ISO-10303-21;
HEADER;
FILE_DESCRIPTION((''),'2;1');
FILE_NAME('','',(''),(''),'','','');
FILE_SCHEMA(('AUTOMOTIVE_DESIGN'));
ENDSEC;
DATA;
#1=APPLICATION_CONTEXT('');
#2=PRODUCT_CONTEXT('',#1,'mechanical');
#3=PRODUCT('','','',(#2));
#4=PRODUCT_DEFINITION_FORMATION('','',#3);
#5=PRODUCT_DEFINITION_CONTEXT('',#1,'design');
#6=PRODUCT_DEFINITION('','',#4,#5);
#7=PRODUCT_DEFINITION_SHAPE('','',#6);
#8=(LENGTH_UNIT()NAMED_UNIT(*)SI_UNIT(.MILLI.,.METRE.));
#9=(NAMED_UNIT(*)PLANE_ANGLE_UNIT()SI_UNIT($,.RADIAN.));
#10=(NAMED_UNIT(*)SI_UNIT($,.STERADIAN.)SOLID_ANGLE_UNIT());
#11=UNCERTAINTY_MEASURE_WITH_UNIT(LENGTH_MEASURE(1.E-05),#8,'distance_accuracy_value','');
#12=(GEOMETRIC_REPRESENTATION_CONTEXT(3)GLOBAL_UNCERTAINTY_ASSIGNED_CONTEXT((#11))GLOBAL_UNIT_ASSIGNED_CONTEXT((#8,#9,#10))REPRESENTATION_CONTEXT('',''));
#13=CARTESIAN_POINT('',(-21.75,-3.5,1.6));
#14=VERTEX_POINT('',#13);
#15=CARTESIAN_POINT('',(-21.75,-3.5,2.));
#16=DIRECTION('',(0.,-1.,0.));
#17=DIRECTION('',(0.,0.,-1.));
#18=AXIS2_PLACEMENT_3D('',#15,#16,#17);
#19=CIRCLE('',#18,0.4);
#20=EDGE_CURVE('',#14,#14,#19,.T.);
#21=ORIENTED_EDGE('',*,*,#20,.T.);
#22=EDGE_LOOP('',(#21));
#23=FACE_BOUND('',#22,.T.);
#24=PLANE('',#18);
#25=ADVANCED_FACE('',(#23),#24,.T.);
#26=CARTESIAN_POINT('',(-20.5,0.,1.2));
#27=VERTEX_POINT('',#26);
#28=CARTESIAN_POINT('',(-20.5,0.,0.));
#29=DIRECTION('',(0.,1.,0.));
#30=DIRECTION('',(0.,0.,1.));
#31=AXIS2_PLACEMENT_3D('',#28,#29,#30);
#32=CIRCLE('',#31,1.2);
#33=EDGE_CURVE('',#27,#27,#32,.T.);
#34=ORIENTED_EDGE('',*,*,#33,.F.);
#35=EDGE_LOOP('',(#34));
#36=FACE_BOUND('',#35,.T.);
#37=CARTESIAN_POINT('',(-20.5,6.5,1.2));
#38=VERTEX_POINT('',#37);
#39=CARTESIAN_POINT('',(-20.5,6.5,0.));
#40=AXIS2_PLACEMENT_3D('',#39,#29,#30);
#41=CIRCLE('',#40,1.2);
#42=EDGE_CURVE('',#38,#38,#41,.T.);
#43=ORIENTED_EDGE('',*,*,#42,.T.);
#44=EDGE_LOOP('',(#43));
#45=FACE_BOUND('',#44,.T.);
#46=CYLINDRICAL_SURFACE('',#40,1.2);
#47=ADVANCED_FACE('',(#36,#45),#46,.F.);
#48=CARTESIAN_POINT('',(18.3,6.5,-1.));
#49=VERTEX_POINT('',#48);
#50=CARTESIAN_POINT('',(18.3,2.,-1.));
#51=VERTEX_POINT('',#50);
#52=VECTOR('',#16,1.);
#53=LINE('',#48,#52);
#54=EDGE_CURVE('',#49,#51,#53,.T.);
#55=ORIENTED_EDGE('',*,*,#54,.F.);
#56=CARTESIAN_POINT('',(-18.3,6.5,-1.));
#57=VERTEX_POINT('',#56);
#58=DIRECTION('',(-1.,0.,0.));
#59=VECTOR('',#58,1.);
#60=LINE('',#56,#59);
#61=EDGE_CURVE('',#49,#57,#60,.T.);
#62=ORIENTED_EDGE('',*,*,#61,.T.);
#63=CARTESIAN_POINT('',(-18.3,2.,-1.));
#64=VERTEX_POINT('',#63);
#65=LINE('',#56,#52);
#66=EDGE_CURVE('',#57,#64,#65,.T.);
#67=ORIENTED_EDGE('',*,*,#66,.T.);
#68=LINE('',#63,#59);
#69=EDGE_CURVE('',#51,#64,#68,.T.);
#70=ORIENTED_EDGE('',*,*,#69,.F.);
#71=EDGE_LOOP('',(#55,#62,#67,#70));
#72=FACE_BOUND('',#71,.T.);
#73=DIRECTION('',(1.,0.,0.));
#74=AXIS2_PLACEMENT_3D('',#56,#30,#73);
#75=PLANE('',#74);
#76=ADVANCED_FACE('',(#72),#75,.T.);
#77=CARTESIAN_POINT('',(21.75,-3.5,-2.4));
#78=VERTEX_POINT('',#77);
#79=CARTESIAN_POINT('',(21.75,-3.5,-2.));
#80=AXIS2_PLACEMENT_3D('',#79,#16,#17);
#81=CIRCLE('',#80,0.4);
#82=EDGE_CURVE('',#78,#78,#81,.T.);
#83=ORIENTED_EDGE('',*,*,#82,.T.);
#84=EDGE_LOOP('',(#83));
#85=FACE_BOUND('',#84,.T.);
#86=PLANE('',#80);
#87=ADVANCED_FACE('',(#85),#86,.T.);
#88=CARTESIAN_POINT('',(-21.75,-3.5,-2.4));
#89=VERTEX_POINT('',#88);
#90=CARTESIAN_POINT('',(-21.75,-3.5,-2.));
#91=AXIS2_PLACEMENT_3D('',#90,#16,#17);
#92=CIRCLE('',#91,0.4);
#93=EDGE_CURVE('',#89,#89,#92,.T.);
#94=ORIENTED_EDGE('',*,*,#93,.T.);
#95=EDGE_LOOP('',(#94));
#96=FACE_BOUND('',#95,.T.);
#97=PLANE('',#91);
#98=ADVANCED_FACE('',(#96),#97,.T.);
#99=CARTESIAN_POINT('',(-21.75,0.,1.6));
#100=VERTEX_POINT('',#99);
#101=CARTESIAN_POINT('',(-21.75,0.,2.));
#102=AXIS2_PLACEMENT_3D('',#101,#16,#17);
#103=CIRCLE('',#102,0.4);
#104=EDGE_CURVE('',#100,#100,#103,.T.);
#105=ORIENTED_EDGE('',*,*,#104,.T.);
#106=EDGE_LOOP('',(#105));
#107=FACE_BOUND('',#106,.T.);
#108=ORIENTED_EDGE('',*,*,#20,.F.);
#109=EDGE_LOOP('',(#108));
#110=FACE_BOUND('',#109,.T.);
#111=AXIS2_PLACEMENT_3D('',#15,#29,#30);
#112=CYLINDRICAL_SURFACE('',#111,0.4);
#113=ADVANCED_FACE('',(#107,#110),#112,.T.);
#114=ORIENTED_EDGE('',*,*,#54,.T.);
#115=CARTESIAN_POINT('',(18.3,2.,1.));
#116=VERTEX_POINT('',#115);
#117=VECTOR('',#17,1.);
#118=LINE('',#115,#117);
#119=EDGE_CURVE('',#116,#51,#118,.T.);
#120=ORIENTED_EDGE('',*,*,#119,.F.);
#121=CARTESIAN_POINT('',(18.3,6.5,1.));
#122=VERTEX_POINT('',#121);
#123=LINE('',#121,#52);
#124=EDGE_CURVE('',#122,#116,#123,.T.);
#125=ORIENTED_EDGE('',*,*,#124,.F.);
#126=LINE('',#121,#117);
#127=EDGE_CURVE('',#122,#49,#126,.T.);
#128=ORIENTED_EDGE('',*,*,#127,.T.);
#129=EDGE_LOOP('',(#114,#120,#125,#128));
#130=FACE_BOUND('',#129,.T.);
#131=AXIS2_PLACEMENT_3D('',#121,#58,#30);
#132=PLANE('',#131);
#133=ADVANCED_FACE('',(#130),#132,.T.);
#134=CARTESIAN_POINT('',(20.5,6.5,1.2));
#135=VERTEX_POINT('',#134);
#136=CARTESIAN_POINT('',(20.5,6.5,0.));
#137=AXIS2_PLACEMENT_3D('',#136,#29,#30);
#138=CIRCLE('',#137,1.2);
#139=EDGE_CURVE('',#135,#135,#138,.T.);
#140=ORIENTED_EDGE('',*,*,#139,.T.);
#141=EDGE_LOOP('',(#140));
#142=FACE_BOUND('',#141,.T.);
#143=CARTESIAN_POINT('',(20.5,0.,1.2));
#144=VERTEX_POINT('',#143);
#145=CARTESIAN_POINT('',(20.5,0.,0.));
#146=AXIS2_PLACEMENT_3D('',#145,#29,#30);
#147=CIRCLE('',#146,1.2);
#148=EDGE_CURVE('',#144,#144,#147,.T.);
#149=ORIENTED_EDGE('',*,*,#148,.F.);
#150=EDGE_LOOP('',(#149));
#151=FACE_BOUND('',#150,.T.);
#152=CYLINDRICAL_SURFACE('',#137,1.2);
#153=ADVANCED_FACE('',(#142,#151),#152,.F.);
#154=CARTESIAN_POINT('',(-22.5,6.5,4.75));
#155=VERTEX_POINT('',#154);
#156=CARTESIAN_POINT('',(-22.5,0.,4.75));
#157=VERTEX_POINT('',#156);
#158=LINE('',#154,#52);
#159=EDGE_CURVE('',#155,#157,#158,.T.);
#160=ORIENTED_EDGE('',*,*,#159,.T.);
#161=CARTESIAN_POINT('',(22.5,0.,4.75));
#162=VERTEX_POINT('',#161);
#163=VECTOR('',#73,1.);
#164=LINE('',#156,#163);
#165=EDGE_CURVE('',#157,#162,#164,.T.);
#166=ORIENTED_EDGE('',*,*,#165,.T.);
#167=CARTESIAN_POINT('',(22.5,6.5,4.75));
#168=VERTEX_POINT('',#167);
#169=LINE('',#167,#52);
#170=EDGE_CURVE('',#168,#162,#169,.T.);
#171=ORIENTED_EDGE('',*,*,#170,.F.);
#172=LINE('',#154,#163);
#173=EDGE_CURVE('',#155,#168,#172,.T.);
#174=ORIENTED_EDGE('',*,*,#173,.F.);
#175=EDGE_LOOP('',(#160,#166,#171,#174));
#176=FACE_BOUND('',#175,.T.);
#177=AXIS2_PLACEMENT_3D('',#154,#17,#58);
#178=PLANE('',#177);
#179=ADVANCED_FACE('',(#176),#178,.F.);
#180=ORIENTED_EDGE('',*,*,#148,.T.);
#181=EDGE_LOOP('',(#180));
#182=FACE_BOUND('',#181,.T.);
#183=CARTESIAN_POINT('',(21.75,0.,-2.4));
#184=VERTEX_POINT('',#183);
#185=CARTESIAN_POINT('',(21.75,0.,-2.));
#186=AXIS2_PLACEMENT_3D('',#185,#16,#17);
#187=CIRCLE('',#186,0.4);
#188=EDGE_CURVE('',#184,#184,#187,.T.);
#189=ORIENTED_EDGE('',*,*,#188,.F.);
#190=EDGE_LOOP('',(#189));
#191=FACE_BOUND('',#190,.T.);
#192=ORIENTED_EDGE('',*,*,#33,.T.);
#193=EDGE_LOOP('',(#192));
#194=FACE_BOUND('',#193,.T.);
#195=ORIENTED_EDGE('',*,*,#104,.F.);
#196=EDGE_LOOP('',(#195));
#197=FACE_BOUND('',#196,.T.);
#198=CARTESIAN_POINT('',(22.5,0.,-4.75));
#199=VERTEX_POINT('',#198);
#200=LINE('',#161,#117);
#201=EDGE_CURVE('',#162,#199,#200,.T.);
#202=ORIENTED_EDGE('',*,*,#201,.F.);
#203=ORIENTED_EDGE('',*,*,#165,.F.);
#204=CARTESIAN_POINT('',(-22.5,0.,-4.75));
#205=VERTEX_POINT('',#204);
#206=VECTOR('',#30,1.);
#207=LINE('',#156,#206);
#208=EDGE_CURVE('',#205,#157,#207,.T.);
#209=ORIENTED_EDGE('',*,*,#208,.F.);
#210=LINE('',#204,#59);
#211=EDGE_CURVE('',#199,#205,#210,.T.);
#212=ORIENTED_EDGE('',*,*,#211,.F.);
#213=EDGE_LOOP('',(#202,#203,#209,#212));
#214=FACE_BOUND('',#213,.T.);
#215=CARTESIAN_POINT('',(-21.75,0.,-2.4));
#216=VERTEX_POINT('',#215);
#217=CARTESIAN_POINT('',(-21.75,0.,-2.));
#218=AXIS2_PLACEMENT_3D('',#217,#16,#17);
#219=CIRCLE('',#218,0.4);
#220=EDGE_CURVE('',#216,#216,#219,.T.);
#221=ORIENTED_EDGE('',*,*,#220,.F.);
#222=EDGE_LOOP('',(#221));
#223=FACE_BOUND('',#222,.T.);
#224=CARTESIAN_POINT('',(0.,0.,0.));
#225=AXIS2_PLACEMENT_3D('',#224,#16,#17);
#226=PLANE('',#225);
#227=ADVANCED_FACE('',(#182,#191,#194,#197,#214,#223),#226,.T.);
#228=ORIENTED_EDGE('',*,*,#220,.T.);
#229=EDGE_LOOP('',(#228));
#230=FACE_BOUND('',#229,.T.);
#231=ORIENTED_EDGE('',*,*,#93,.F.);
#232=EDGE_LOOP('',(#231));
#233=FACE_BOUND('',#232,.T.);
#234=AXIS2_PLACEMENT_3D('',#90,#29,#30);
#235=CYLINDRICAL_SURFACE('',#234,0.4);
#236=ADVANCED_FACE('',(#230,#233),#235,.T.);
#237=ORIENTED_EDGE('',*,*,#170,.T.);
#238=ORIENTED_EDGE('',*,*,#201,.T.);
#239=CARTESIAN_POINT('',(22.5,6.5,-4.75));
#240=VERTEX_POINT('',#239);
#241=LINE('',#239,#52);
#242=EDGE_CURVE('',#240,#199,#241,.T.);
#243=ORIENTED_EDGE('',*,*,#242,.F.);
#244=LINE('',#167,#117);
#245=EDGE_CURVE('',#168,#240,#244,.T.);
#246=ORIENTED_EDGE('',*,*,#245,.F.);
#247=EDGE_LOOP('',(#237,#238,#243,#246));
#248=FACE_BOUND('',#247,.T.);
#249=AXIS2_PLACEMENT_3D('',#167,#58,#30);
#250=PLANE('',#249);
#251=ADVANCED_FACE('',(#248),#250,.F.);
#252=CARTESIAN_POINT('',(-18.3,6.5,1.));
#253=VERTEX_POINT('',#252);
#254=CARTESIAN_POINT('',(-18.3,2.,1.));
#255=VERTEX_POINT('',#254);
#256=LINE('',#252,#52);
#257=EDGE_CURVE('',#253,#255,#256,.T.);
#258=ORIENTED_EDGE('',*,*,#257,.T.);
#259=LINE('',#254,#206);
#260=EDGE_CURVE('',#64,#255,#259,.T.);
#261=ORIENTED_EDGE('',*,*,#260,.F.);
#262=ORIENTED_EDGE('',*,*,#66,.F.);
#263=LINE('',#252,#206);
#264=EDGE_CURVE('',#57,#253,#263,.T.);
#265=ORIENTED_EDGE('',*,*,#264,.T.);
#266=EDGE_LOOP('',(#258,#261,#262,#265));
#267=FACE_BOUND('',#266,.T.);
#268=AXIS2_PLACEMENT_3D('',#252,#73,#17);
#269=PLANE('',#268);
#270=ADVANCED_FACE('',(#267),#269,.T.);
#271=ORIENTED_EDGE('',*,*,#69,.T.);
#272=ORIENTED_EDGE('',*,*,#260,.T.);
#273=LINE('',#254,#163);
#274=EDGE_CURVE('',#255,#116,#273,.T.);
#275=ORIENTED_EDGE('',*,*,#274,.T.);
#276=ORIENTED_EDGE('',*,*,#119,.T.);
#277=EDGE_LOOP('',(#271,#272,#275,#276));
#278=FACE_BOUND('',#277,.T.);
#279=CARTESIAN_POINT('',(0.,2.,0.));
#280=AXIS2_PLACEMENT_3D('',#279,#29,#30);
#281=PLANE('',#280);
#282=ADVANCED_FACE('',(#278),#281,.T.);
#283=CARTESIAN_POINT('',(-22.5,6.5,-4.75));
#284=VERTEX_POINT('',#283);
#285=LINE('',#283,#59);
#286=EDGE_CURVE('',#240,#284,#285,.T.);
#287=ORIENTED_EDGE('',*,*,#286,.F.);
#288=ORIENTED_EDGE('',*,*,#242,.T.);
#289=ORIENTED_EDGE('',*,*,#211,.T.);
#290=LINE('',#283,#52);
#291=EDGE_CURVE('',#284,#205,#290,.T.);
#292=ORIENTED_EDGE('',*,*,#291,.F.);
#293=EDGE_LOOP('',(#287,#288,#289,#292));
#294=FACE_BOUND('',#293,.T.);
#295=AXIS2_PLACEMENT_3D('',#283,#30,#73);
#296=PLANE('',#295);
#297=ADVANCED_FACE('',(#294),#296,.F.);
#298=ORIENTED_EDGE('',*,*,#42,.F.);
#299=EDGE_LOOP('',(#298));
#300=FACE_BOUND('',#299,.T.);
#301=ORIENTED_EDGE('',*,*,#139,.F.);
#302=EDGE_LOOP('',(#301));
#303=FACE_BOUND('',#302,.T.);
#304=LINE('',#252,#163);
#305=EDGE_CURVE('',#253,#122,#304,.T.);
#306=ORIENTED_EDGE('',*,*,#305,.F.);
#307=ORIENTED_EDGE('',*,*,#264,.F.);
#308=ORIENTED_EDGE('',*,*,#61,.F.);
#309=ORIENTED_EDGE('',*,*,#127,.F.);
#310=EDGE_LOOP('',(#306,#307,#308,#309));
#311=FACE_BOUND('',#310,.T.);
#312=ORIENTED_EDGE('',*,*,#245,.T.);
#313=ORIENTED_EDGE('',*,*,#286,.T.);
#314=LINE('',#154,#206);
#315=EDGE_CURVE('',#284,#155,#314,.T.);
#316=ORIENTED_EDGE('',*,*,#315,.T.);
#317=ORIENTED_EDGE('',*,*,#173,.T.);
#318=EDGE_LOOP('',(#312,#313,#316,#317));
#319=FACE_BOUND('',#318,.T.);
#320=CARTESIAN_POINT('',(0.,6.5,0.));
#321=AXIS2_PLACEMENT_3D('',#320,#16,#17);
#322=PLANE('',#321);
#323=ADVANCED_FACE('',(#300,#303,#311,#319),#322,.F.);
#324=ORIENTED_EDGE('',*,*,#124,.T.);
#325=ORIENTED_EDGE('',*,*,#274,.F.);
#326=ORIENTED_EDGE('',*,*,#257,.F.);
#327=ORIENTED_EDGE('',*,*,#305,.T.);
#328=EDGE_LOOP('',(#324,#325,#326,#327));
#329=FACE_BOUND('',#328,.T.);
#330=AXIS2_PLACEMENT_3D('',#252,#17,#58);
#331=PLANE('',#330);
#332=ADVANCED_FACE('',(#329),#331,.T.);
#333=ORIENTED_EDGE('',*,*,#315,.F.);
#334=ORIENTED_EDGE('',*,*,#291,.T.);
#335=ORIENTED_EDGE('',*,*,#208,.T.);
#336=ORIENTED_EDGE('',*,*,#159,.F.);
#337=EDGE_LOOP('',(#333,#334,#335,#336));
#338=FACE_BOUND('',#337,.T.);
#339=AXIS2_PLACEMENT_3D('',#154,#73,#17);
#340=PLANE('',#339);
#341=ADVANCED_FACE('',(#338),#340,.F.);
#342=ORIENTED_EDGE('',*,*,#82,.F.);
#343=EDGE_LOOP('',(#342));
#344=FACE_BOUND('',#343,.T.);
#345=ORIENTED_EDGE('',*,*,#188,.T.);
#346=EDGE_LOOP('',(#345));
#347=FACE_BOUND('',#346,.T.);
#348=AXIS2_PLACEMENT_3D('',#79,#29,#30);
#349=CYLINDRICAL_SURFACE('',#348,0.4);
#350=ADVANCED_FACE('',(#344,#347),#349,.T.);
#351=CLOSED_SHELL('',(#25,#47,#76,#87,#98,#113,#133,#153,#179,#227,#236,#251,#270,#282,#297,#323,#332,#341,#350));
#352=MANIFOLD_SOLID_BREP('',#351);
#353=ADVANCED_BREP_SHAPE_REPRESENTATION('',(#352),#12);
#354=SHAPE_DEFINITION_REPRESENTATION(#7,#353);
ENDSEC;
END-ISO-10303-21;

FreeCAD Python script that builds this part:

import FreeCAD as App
import Part
import Sketcher

V = App.Vector
Q = App.Units.Quantity

doc = App.newDocument("Part")
body = doc.addObject("PartDesign::Body", "Body")

# Sketch on XZ plane
sketch1 = body.newObject("Sketcher::SketchObject", "Sketch")
sketch1.AttachmentSupport = (doc.getObject("XZ_Plane"), [""])
sketch1.MapMode = "FlatFace"
sketch1.addGeometry(Part.LineSegment(V(-22.5, -4.8, 0), V(-22.5, 4.8, 0)), False)
sketch1.addGeometry(Part.LineSegment(V(-22.5, 4.8, 0), V(22.5, 4.8, 0)), False)
sketch1.addGeometry(Part.LineSegment(V(22.5, 4.8, 0), V(22.5, -4.8, 0)), False)
sketch1.addGeometry(Part.LineSegment(V(22.5, -4.8, 0), V(-22.5, -4.8, 0)), False)
sketch1.addGeometry(Part.LineSegment(V(18.3, 1, 0), V(-18.3, 1, 0)), False)
sketch1.addGeometry(Part.LineSegment(V(-18.3, 1, 0), V(-18.3, -1, 0)), False)
sketch1.addGeometry(Part.LineSegment(V(-18.3, -1, 0), V(18.3, -1, 0)), False)
sketch1.addGeometry(Part.LineSegment(V(18.3, -1, 0), V(18.3, 1, 0)), False)
sketch1.addConstraint(Sketcher.Constraint("Coincident", 0, 2, 1, 1))
sketch1.addConstraint(Sketcher.Constraint("Coincident", 1, 2, 2, 1))
sketch1.addConstraint(Sketcher.Constraint("Coincident", 2, 2, 3, 1))
sketch1.addConstraint(Sketcher.Constraint("Coincident", 3, 2, 0, 1))
sketch1.addConstraint(Sketcher.Constraint("Coincident", 4, 2, 5, 1))
sketch1.addConstraint(Sketcher.Constraint("Coincident", 5, 2, 6, 1))
sketch1.addConstraint(Sketcher.Constraint("Coincident", 6, 2, 7, 1))
sketch1.addConstraint(Sketcher.Constraint("Coincident", 7, 2, 4, 1))
sketch1.addConstraint(Sketcher.Constraint("Vertical", 0))
sketch1.addConstraint(Sketcher.Constraint("Horizontal", 1))
sketch1.addConstraint(Sketcher.Constraint("Vertical", 2))
sketch1.addConstraint(Sketcher.Constraint("Horizontal", 3))
sketch1.addConstraint(Sketcher.Constraint("Horizontal", 4))
sketch1.addConstraint(Sketcher.Constraint("Vertical", 5))
sketch1.addConstraint(Sketcher.Constraint("Horizontal", 6))
sketch1.addConstraint(Sketcher.Constraint("Vertical", 7))
sketch1.addConstraint(Sketcher.Constraint("Symmetric", 0, 2, 2, 2, -1, 1))
sketch1.addConstraint(Sketcher.Constraint("Symmetric", 4, 2, 6, 2, -1, 1))
sketch1.addConstraint(Sketcher.Constraint("DistanceX", 1, 1, 1, 2, Q("45 mm")))
sketch1.addConstraint(Sketcher.Constraint("DistanceY", 5, 2, 5, 1, Q("2 mm")))
sketch1.addConstraint(Sketcher.Constraint("DistanceX", 4, 2, 4, 1, Q("36.6 mm")))
sketch1.addConstraint(Sketcher.Constraint("DistanceY", 0, 1, 0, 2, Q("9.5 mm")))
pad1 = body.newObject("PartDesign::Pad", "Pad")
pad1.Profile = sketch1
pad1.Length = 6.5
pad1.Reversed = True

# Sketch on XZ plane
sketch2 = body.newObject("Sketcher::SketchObject", "Sketch001")
sketch2.AttachmentSupport = (doc.getObject("XZ_Plane"), [""])
sketch2.MapMode = "FlatFace"
sketch2.addGeometry(Part.LineSegment(V(-22, 5, 0), V(-22, -5, 0)), False)
sketch2.addGeometry(Part.LineSegment(V(-22, -5, 0), V(22, -5, 0)), False)
sketch2.addGeometry(Part.LineSegment(V(22, -5, 0), V(22, 5, 0)), False)
sketch2.addGeometry(Part.LineSegment(V(22, 5, 0), V(-22, 5, 0)), False)
sketch2.addConstraint(Sketcher.Constraint("Coincident", 0, 2, 1, 1))
sketch2.addConstraint(Sketcher.Constraint("Coincident", 1, 2, 2, 1))
sketch2.addConstraint(Sketcher.Constraint("Coincident", 2, 2, 3, 1))
sketch2.addConstraint(Sketcher.Constraint("Coincident", 3, 2, 0, 1))
sketch2.addConstraint(Sketcher.Constraint("Vertical", 0))
sketch2.addConstraint(Sketcher.Constraint("Horizontal", 1))
sketch2.addConstraint(Sketcher.Constraint("Vertical", 2))
sketch2.addConstraint(Sketcher.Constraint("Horizontal", 3))
sketch2.addConstraint(Sketcher.Constraint("Symmetric", 0, 2, 2, 2, -1, 1))
sketch2.addConstraint(Sketcher.Constraint("DistanceX", 1, 1, 1, 2, Q("45 mm")))
sketch2.addConstraint(Sketcher.Constraint("DistanceY", 0, 2, 0, 1, Q("9.5 mm")))
pad2 = body.newObject("PartDesign::Pad", "Pad001")
pad2.Profile = sketch2
pad2.Length = 2
pad2.Reversed = True

# Sketch on XZ plane
sketch3 = body.newObject("Sketcher::SketchObject", "Sketch002")
sketch3.AttachmentSupport = (doc.getObject("XZ_Plane"), [""])
sketch3.MapMode = "FlatFace"
sketch3.AttachmentOffset = App.Placement(V(0, 0, -6.5), App.Rotation())
sketch3.addGeometry(Part.Circle(V(20.5, 0, 0), V(0, 0, 1), 1.2), False)
sketch3.addGeometry(Part.Circle(V(-20.5, 0, 0), V(0, 0, 1), 1.2), False)
sketch3.addConstraint(Sketcher.Constraint("Equal", 0, 1))
sketch3.addConstraint(Sketcher.Constraint("Symmetric", 0, 3, 1, 3, -1, 1))
sketch3.addConstraint(Sketcher.Constraint("PointOnObject", 0, 3, -1))
sketch3.addConstraint(Sketcher.Constraint("Diameter", 0, Q("2.4 mm")))
sketch3.addConstraint(Sketcher.Constraint("DistanceX", 1, 3, 0, 3, Q("41 mm")))
doc.recompute()
hole = body.newObject("PartDesign::Hole", "Hole")
hole.Profile = sketch3
hole.ThreadType = "None"
hole.Diameter = 2.4
hole.DepthType = "ThroughAll"
hole.Reversed = True

# Sketch on XZ plane
sketch4 = body.newObject("Sketcher::SketchObject", "Sketch003")
sketch4.AttachmentSupport = (doc.getObject("XZ_Plane"), [""])
sketch4.MapMode = "FlatFace"
sketch4.addGeometry(Part.Circle(V(-21.75, 2, 0), V(0, 0, 1), 0.4), False)
sketch4.addGeometry(Part.Circle(V(-21.75, -2, 0), V(0, 0, 1), 0.4), False)
sketch4.addGeometry(Part.Circle(V(21.75, -2, 0), V(0, 0, 1), 0.4), False)
sketch4.addConstraint(Sketcher.Constraint("Equal", 0, 1))
sketch4.addConstraint(Sketcher.Constraint("Equal", 1, 2))
sketch4.addConstraint(Sketcher.Constraint("Symmetric", 0, 3, 2, 3, -1, 1))
sketch4.addConstraint(Sketcher.Constraint("Symmetric", 1, 3, 2, 3, -2))
sketch4.addConstraint(Sketcher.Constraint("Diameter", 0, Q("0.8 mm")))
sketch4.addConstraint(Sketcher.Constraint("DistanceY", -1, 1, 0, 3, Q("2 mm")))
sketch4.addConstraint(Sketcher.Constraint("DistanceX", 1, 3, 2, 3, Q("43.5 mm")))
pad3 = body.newObject("PartDesign::Pad", "Pad002")
pad3.Profile = sketch4
pad3.Length = 3.5

doc.recompute()
